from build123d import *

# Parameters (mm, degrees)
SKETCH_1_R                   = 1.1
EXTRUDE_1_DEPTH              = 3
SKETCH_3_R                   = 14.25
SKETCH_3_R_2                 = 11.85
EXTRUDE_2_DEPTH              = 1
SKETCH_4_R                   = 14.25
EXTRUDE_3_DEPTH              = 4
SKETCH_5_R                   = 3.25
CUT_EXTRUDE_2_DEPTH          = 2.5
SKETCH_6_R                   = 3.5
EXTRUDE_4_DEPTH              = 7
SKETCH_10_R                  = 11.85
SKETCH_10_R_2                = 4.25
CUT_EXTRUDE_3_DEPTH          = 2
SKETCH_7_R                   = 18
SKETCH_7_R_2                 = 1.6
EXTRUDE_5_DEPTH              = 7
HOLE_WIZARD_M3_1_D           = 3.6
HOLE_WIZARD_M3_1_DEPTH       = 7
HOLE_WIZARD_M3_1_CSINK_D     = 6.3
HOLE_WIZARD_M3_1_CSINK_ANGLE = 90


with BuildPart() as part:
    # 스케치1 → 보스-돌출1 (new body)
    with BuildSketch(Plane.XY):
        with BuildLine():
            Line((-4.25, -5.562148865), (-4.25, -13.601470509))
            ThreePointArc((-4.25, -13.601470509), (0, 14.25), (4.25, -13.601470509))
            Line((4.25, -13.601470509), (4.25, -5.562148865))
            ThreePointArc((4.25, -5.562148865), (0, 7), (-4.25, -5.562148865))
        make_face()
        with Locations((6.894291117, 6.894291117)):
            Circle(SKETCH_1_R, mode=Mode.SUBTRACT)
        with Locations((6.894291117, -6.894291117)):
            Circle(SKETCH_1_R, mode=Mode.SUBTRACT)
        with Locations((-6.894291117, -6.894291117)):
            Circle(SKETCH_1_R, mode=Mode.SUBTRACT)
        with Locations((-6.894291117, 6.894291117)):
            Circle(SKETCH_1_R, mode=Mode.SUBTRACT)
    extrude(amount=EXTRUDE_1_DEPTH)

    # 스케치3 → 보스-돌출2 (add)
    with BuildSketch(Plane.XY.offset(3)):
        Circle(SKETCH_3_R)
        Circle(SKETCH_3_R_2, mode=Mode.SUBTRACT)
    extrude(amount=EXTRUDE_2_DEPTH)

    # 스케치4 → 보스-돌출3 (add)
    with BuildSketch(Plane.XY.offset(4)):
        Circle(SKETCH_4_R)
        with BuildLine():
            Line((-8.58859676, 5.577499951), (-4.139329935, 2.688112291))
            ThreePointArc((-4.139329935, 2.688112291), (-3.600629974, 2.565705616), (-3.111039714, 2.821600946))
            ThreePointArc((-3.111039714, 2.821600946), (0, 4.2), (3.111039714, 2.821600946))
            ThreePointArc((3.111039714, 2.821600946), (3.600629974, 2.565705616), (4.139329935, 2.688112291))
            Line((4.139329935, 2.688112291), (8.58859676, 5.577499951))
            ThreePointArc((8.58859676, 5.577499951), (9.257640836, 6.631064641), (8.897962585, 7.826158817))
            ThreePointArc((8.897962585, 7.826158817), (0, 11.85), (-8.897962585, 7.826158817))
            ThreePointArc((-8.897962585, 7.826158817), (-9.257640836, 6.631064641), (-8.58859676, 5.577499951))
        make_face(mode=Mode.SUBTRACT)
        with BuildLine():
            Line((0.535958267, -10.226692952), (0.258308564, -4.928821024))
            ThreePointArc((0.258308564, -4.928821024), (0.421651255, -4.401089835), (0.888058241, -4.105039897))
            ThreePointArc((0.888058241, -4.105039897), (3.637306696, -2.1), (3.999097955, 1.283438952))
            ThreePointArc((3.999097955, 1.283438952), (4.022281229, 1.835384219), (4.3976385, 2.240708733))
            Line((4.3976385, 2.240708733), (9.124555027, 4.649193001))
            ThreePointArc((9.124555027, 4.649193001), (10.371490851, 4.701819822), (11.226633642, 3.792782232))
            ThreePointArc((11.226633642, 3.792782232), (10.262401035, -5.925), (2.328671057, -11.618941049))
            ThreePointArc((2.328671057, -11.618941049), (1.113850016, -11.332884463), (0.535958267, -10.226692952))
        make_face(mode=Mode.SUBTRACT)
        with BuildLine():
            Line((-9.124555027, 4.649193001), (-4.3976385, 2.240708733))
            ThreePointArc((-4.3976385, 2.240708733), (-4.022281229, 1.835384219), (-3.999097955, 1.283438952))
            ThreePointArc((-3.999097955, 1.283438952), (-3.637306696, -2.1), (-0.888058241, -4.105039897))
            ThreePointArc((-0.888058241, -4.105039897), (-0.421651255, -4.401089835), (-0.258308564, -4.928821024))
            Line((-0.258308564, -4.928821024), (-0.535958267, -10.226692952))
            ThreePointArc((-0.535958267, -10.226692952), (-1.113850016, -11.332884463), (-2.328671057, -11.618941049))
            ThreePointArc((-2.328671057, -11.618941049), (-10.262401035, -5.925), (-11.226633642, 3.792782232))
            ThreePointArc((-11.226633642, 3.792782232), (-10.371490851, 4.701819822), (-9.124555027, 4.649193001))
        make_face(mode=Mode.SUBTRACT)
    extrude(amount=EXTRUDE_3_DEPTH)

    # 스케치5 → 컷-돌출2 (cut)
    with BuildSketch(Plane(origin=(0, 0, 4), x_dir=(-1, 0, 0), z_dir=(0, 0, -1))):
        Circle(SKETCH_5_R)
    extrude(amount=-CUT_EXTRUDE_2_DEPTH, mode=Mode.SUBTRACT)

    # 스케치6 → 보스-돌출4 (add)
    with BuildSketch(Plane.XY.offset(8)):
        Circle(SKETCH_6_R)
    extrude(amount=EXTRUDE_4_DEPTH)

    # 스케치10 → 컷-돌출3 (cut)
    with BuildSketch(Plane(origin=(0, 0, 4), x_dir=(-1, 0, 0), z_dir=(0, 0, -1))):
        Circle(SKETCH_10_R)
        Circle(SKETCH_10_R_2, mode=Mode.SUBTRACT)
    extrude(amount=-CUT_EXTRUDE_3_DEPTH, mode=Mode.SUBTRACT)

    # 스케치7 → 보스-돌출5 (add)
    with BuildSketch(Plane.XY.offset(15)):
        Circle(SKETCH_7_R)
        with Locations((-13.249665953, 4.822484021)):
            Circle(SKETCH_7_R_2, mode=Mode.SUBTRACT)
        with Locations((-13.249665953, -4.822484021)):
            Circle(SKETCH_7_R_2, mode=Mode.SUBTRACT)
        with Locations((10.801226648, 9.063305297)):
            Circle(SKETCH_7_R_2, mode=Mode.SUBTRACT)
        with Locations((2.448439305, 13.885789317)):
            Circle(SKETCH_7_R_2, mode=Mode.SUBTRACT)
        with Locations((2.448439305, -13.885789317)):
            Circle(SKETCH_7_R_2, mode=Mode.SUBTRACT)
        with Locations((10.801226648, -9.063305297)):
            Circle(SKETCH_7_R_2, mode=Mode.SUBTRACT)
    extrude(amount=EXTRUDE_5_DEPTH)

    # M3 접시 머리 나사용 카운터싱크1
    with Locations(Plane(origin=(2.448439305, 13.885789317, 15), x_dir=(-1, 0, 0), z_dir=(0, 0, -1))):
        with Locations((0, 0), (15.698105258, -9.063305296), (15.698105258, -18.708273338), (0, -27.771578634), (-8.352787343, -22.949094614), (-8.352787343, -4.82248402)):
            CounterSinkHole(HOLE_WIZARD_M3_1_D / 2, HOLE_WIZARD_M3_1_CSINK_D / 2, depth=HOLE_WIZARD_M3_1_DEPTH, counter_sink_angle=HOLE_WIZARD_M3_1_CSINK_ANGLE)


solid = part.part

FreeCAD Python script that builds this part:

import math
import FreeCAD as App
import Part
import Sketcher

V = App.Vector
Q = App.Units.Quantity

doc = App.newDocument("Part")
body = doc.addObject("PartDesign::Body", "Body")

sketch1 = body.newObject("Sketcher::SketchObject", "Sketch")
sketch1.AttachmentSupport = (doc.getObject("XY_Plane"), [""])
sketch1.MapMode = "FlatFace"
sketch1.addGeometry([
    Part.LineSegment(V(-4.25, -13.601471, 0), V(-4.25, -5.562149, 0)),
    Part.ArcOfCircle(Part.Circle(V(0, 0, 0), V(0, 0, 1), 7), math.radians(-52.616802), math.radians(232.616802)),
    Part.LineSegment(V(4.25, -5.562149, 0), V(4.25, -13.601471, 0)),
    Part.ArcOfCircle(Part.Circle(V(0, 0, 0), V(0, 0, 1), 14.25), math.radians(-72.647739), math.radians(252.647739)),
    Part.Circle(V(6.894291, -6.894291, 0), V(0, 0, 1), 1.1),
    Part.Circle(V(-6.894291, -6.894291, 0), V(0, 0, 1), 1.1),
    Part.Circle(V(6.894291, 6.894291, 0), V(0, 0, 1), 1.1),
    Part.Circle(V(-6.894291, 6.894291, 0), V(0, 0, 1), 1.1),
], False)
sketch1.addConstraint([
    Sketcher.Constraint("Coincident", 0, 2, 1, 2),
    Sketcher.Constraint("Coincident", 1, 1, 2, 1),
    Sketcher.Constraint("Coincident", 2, 2, 3, 1),
    Sketcher.Constraint("Coincident", 3, 2, 0, 1),
    Sketcher.Constraint("Vertical", 0),
    Sketcher.Constraint("Vertical", 2),
    Sketcher.Constraint("Coincident", 1, 3, -1, 1),
    Sketcher.Constraint("Coincident", 3, 3, -1, 1),
    Sketcher.Constraint("Equal", 4, 5),
    Sketcher.Constraint("Equal", 5, 6),
    Sketcher.Constraint("Equal", 6, 7),
    Sketcher.Constraint("Symmetric", 5, 3, 6, 3, -1, 1),
    Sketcher.Constraint("Symmetric", 4, 3, 7, 3, -1, 1),
    Sketcher.Constraint("Symmetric", 4, 3, 5, 3, -2),
    Sketcher.Constraint("Horizontal", 0, 2, 1, 1),
    Sketcher.Constraint("Radius", 1, 7.0),
    Sketcher.Constraint("Diameter", 4, 2.2),
    Sketcher.Constraint("Radius", 3, 14.25),
    Sketcher.Constraint("DistanceX", 0, 2, 1, 1, 8.5),
    Sketcher.Constraint("DistanceX", -1, 1, 4, 3, 6.894291),
    Sketcher.Constraint("DistanceY", 4, 3, -1, 1, 6.894291),
])
pad1 = body.newObject("PartDesign::Pad", "Pad")
pad1.Profile = sketch1
pad1.Length = 3

sketch2 = body.newObject("Sketcher::SketchObject", "Sketch001")
sketch2.AttachmentSupport = (doc.getObject("XY_Plane"), [""])
sketch2.MapMode = "FlatFace"
sketch2.AttachmentOffset = App.Placement(V(0, 0, 3), App.Rotation())
sketch2.addGeometry([
    Part.Circle(V(0, 0, 0), V(0, 0, 1), 14.25),
    Part.Circle(V(0, 0, 0), V(0, 0, 1), 11.85),
], False)
sketch2.addConstraint([
    Sketcher.Constraint("Coincident", 0, 3, -1, 1),
    Sketcher.Constraint("Coincident", 1, 3, -1, 1),
    Sketcher.Constraint("Diameter", 0, 28.5),
    Sketcher.Constraint("Diameter", 1, 23.7),
])
pad2 = body.newObject("PartDesign::Pad", "Pad001")
pad2.Profile = sketch2
pad2.Length = 1

sketch3 = body.newObject("Sketcher::SketchObject", "Sketch002")
sketch3.AttachmentSupport = (doc.getObject("XY_Plane"), [""])
sketch3.MapMode = "FlatFace"
sketch3.AttachmentOffset = App.Placement(V(0, 0, 4), App.Rotation())
sketch3.addGeometry([
    Part.Circle(V(0, 0, 0), V(0, 0, 1), 14.25),
    Part.ArcOfCircle(Part.Circle(V(-9.805541, 3.312683, 0), V(0, 0, 1), 1.5), math.radians(63), math.radians(161.333083)),
    Part.LineSegment(V(-9.124555, 4.649193, 0), V(-4.397639, 2.240709, 0)),
    Part.ArcOfCircle(Part.Circle(V(-4.760831, 1.527904, 0), V(0, 0, 1), 0.8), math.radians(-17.793104), math.radians(63)),
    Part.ArcOfCircle(Part.Circle(V(0, 0, 0), V(0, 0, 1), 4.2), math.radians(162.206896), math.radians(257.793104)),
    Part.ArcOfCircle(Part.Circle(V(-1.057212, -4.886952, 0), V(0, 0, 1), 0.8), math.radians(-3), math.radians(77.793104)),
    Part.LineSegment(V(-0.258309, -4.928821, 0), V(-0.535958, -10.226693, 0)),
    Part.ArcOfCircle(Part.Circle(V(-2.033903, -10.148189, 0), V(0, 0, 1), 1.5), math.radians(-101.333083), math.radians(-3)),
    Part.ArcOfCircle(Part.Circle(V(0, 0, 0), V(0, 0, 1), 11.85), math.radians(161.333083), math.radians(258.666917)),
    Part.ArcOfCircle(Part.Circle(V(2.033903, -10.148189, 0), V(0, 0, 1), 1.5), math.radians(-177), math.radians(-78.666917)),
    Part.LineSegment(V(0.535958, -10.226693, 0), V(0.258309, -4.928821, 0)),
    Part.ArcOfCircle(Part.Circle(V(1.057212, -4.886952, 0), V(0, 0, 1), 0.8), math.radians(102.206896), math.radians(183)),
    Part.ArcOfCircle(Part.Circle(V(0, 0, 0), V(0, 0, 1), 4.2), math.radians(-77.793104), math.radians(17.793104)),
    Part.ArcOfCircle(Part.Circle(V(4.760831, 1.527904, 0), V(0, 0, 1), 0.8), math.radians(117), math.radians(197.793104)),
    Part.LineSegment(V(4.397639, 2.240709, 0), V(9.124555, 4.649193, 0)),
    Part.ArcOfCircle(Part.Circle(V(9.805541, 3.312683, 0), V(0, 0, 1), 1.5), math.radians(18.666917), math.radians(117)),
    Part.ArcOfCircle(Part.Circle(V(0, 0, 0), V(0, 0, 1), 11.85), math.radians(-78.666917), math.radians(18.666917)),
    Part.LineSegment(V(-4.13933, 2.688112, 0), V(-8.588597, 5.5775, 0)),
    Part.ArcOfCircle(Part.Circle(V(-7.771638, 6.835506, 0), V(0, 0, 1), 1.5), math.radians(138.666917), math.radians(237)),
    Part.ArcOfCircle(Part.Circle(V(0, 0, 0), V(0, 0, 1), 11.85), math.radians(41.333083), math.radians(138.666917)),
    Part.ArcOfCircle(Part.Circle(V(7.771638, 6.835506, 0), V(0, 0, 1), 1.5), math.radians(-57), math.radians(41.333083)),
    Part.LineSegment(V(8.588597, 5.5775, 0), V(4.13933, 2.688112, 0)),
    Part.ArcOfCircle(Part.Circle(V(3.703619, 3.359049, 0), V(0, 0, 1), 0.8), math.radians(-137.793104), math.radians(-57)),
    Part.ArcOfCircle(Part.Circle(V(0, 0, 0), V(0, 0, 1), 4.2), math.radians(42.206896), math.radians(137.793104)),
    Part.ArcOfCircle(Part.Circle(V(-3.703619, 3.359049, 0), V(0, 0, 1), 0.8), math.radians(-123), math.radians(-42.206896)),
], False)
sketch3.addConstraint([
    Sketcher.Constraint("Tangent", 1, 1, 2, 1),
    Sketcher.Constraint("Tangent", 2, 2, 3, 2),
    Sketcher.Constraint("Tangent", 3, 1, 4, 1),
    Sketcher.Constraint("Tangent", 4, 2, 5, 2),
    Sketcher.Constraint("Tangent", 5, 1, 6, 1),
    Sketcher.Constraint("Tangent", 6, 2, 7, 2),
    Sketcher.Constraint("Tangent", 7, 1, 8, 2),
    Sketcher.Constraint("Tangent", 8, 1, 1, 2),
    Sketcher.Constraint("Tangent", 9, 1, 10, 1),
    Sketcher.Constraint("Tangent", 10, 2, 11, 2),
    Sketcher.Constraint("Tangent", 11, 1, 12, 1),
    Sketcher.Constraint("Tangent", 12, 2, 13, 2),
    Sketcher.Constraint("Tangent", 13, 1, 14, 1),
    Sketcher.Constraint("Tangent", 14, 2, 15, 2),
    Sketcher.Constraint("Tangent", 15, 1, 16, 2),
    Sketcher.Constraint("Tangent", 16, 1, 9, 2),
    Sketcher.Constraint("Tangent", 17, 2, 18, 2),
    Sketcher.Constraint("Tangent", 18, 1, 19, 2),
    Sketcher.Constraint("Tangent", 19, 1, 20, 2),
    Sketcher.Constraint("Tangent", 20, 1, 21, 1),
    Sketcher.Constraint("Tangent", 21, 2, 22, 2),
    Sketcher.Constraint("Tangent", 22, 1, 23, 1),
    Sketcher.Constraint("Tangent", 23, 2, 24, 2),
    Sketcher.Constraint("Tangent", 24, 1, 17, 1),
    Sketcher.Constraint("Coincident", 0, 3, -1, 1),
    Sketcher.Constraint("Coincident", 4, 3, -1, 1),
    Sketcher.Constraint("Coincident", 8, 3, -1, 1),
    Sketcher.Constraint("Coincident", 12, 3, -1, 1),
    Sketcher.Constraint("Coincident", 16, 3, -1, 1),
    Sketcher.Constraint("Coincident", 19, 3, -1, 1),
    Sketcher.Constraint("Coincident", 23, 3, -1, 1),
    Sketcher.Constraint("Equal", 3, 5),
    Sketcher.Constraint("Equal", 1, 7),
    Sketcher.Constraint("Equal", 7, 9),
    Sketcher.Constraint("Equal", 5, 11),
    Sketcher.Constraint("Equal", 4, 12),
    Sketcher.Constraint("Equal", 11, 13),
    Sketcher.Constraint("Equal", 9, 15),
    Sketcher.Constraint("Equal", 8, 16),
    Sketcher.Constraint("Equal", 15, 18),
    Sketcher.Constraint("Equal", 16, 19),
    Sketcher.Constraint("Equal", 18, 20),
    Sketcher.Constraint("Equal", 13, 22),
    Sketcher.Constraint("Equal", 12, 23),
    Sketcher.Constraint("Equal", 22, 24),
    Sketcher.Constraint("Symmetric", 6, 2, 9, 1, -2),
    Sketcher.Constraint("Symmetric", 2, 2, 13, 1, -2),
    Sketcher.Constraint("Symmetric", 17, 2, 20, 1, -2),
    Sketcher.Constraint("Equal", 2, 6),
    Sketcher.Constraint("Equal", 14, 17),
    Sketcher.Constraint("Diameter", 0, 28.5),
    Sketcher.Constraint("Radius", 1, 1.5),
    Sketcher.Constraint("Radius", 3, 0.8),
    Sketcher.Constraint("Radius", 4, 4.2),
    Sketcher.Constraint("Angle", 2, Q("-27 deg")),
    Sketcher.Constraint("Angle", 6, Q("-93 deg")),
    Sketcher.Constraint("Angle", 17, Q("147 deg")),
    Sketcher.Constraint("Radius", 8, 11.85),
    Sketcher.Constraint("DistanceY", -1, 1, 17, 2, 5.5775),
])
pad3 = body.newObject("PartDesign::Pad", "Pad002")
pad3.Profile = sketch3
pad3.Length = 4

sketch4 = body.newObject("Sketcher::SketchObject", "Sketch003")
sketch4.AttachmentSupport = (doc.getObject("XY_Plane"), [""])
sketch4.MapMode = "FlatFace"
sketch4.AttachmentOffset = App.Placement(V(0, 0, 4), App.Rotation())
sketch4.addGeometry(Part.Circle(V(0, 0, 0), V(0, 0, 1), 3.25), False)
sketch4.addConstraint([
    Sketcher.Constraint("Coincident", 0, 3, -1, 1),
    Sketcher.Constraint("Diameter", 0, 6.5),
])
pocket1 = body.newObject("PartDesign::Pocket", "Pocket")
pocket1.Profile = sketch4
pocket1.Length = 2.5
pocket1.Reversed = True

sketch5 = body.newObject("Sketcher::SketchObject", "Sketch004")
sketch5.AttachmentSupport = (doc.getObject("XY_Plane"), [""])
sketch5.MapMode = "FlatFace"
sketch5.AttachmentOffset = App.Placement(V(0, 0, 8), App.Rotation())
sketch5.addGeometry(Part.Circle(V(0, 0, 0), V(0, 0, 1), 3.5), False)
sketch5.addConstraint([
    Sketcher.Constraint("Coincident", 0, 3, -1, 1),
    Sketcher.Constraint("Diameter", 0, 7.0),
])
pad4 = body.newObject("PartDesign::Pad", "Pad003")
pad4.Profile = sketch5
pad4.Length = 7

sketch6 = body.newObject("Sketcher::SketchObject", "Sketch005")
sketch6.AttachmentSupport = (doc.getObject("XY_Plane"), [""])
sketch6.MapMode = "FlatFace"
sketch6.AttachmentOffset = App.Placement(V(0, 0, 4), App.Rotation())
sketch6.addGeometry([
    Part.Circle(V(0, 0, 0), V(0, 0, 1), 11.85),
    Part.Circle(V(0, 0, 0), V(0, 0, 1), 4.25),
], False)
sketch6.addConstraint([
    Sketcher.Constraint("Coincident", 0, 3, -1, 1),
    Sketcher.Constraint("Coincident", 1, 3, -1, 1),
    Sketcher.Constraint("Diameter", 0, 23.7),
    Sketcher.Constraint("Diameter", 1, 8.5),
])
pocket2 = body.newObject("PartDesign::Pocket", "Pocket001")
pocket2.Profile = sketch6
pocket2.Length = 2
pocket2.Reversed = True

sketch7 = body.newObject("Sketcher::SketchObject", "Sketch006")
sketch7.AttachmentSupport = (doc.getObject("XY_Plane"), [""])
sketch7.MapMode = "FlatFace"
sketch7.AttachmentOffset = App.Placement(V(0, 0, 15), App.Rotation())
sketch7.addGeometry([
    Part.Circle(V(0, 0, 0), V(0, 0, 1), 18),
    Part.Circle(V(-13.249666, -4.822484, 0), V(0, 0, 1), 1.6),
    Part.Circle(V(2.448439, -13.885789, 0), V(0, 0, 1), 1.6),
    Part.Circle(V(10.801227, -9.063305, 0), V(0, 0, 1), 1.6),
    Part.Circle(V(-13.249666, 4.822484, 0), V(0, 0, 1), 1.6),
    Part.Circle(V(2.448439, 13.885789, 0), V(0, 0, 1), 1.6),
    Part.Circle(V(10.801227, 9.063305, 0), V(0, 0, 1), 1.6),
], False)
sketch7.addConstraint([
    Sketcher.Constraint("Coincident", 0, 3, -1, 1),
    Sketcher.Constraint("Equal", 1, 2),
    Sketcher.Constraint("Equal", 2, 3),
    Sketcher.Constraint("Equal", 3, 4),
    Sketcher.Constraint("Equal", 4, 5),
    Sketcher.Constraint("Equal", 5, 6),
    Sketcher.Constraint("Symmetric", 1, 3, 4, 3, -1),
    Sketcher.Constraint("Symmetric", 2, 3, 5, 3, -1),
    Sketcher.Constraint("Symmetric", 3, 3, 6, 3, -1),
    Sketcher.Constraint("Diameter", 0, 36.0),
    Sketcher.Constraint("Diameter", 1, 3.2),
    Sketcher.Constraint("DistanceX", -1, 1, 2, 3, 2.448439),
    Sketcher.Constraint("DistanceY", 2, 3, -1, 1, 13.885789),
    Sketcher.Constraint("DistanceY", 3, 3, 1, 3, 4.240821),
    Sketcher.Constraint("DistanceY", 1, 3, 4, 3, 9.644968),
    Sketcher.Constraint("DistanceX", 1, 3, -1, 1, 13.249666),
    Sketcher.Constraint("DistanceX", -1, 1, 3, 3, 10.801227),
])
pad5 = body.newObject("PartDesign::Pad", "Pad004")
pad5.Profile = sketch7
pad5.Length = 7

sketch8 = body.newObject("Sketcher::SketchObject", "Sketch007")
sketch8.AttachmentSupport = (doc.getObject("XY_Plane"), [""])
sketch8.MapMode = "FlatFace"
sketch8.AttachmentOffset = App.Placement(V(0, 0, 15), App.Rotation())
sketch8.addGeometry([
    Part.Circle(V(2.448439, 13.885789, 0), V(0, 0, 1), 1.8),
    Part.Circle(V(-13.249666, 4.822484, 0), V(0, 0, 1), 1.8),
    Part.Circle(V(-13.249666, -4.822484, 0), V(0, 0, 1), 1.8),
    Part.Circle(V(2.448439, -13.885789, 0), V(0, 0, 1), 1.8),
    Part.Circle(V(10.801227, -9.063305, 0), V(0, 0, 1), 1.8),
    Part.Circle(V(10.801227, 9.063305, 0), V(0, 0, 1), 1.8),
], False)
sketch8.addConstraint([
    Sketcher.Constraint("Equal", 0, 1),
    Sketcher.Constraint("Equal", 1, 2),
    Sketcher.Constraint("Equal", 2, 3),
    Sketcher.Constraint("Equal", 3, 4),
    Sketcher.Constraint("Equal", 4, 5),
    Sketcher.Constraint("Symmetric", 1, 3, 2, 3, -1),
    Sketcher.Constraint("Symmetric", 0, 3, 3, 3, -1),
    Sketcher.Constraint("Symmetric", 4, 3, 5, 3, -1),
    Sketcher.Constraint("Diameter", 0, 3.6),
    Sketcher.Constraint("DistanceX", -1, 1, 0, 3, 2.448439),
    Sketcher.Constraint("DistanceY", -1, 1, 0, 3, 13.885789),
    Sketcher.Constraint("DistanceY", 2, 3, 1, 3, 9.644968),
    Sketcher.Constraint("DistanceY", 4, 3, 2, 3, 4.240821),
    Sketcher.Constraint("DistanceX", 1, 3, -1, 1, 13.249666),
    Sketcher.Constraint("DistanceX", -1, 1, 4, 3, 10.801227),
])
doc.recompute()
hole = body.newObject("PartDesign::Hole", "Hole")
hole.Profile = sketch8
hole.ThreadType = "None"
hole.Diameter = 3.6
hole.DepthType = "Dimension"
hole.Depth = 7
hole.DrillPoint = "Flat"
hole.HoleCutType = "Countersink"
hole.HoleCutDiameter = 6.3
hole.HoleCutCountersinkAngle = 90
hole.Reversed = True

doc.recompute()
